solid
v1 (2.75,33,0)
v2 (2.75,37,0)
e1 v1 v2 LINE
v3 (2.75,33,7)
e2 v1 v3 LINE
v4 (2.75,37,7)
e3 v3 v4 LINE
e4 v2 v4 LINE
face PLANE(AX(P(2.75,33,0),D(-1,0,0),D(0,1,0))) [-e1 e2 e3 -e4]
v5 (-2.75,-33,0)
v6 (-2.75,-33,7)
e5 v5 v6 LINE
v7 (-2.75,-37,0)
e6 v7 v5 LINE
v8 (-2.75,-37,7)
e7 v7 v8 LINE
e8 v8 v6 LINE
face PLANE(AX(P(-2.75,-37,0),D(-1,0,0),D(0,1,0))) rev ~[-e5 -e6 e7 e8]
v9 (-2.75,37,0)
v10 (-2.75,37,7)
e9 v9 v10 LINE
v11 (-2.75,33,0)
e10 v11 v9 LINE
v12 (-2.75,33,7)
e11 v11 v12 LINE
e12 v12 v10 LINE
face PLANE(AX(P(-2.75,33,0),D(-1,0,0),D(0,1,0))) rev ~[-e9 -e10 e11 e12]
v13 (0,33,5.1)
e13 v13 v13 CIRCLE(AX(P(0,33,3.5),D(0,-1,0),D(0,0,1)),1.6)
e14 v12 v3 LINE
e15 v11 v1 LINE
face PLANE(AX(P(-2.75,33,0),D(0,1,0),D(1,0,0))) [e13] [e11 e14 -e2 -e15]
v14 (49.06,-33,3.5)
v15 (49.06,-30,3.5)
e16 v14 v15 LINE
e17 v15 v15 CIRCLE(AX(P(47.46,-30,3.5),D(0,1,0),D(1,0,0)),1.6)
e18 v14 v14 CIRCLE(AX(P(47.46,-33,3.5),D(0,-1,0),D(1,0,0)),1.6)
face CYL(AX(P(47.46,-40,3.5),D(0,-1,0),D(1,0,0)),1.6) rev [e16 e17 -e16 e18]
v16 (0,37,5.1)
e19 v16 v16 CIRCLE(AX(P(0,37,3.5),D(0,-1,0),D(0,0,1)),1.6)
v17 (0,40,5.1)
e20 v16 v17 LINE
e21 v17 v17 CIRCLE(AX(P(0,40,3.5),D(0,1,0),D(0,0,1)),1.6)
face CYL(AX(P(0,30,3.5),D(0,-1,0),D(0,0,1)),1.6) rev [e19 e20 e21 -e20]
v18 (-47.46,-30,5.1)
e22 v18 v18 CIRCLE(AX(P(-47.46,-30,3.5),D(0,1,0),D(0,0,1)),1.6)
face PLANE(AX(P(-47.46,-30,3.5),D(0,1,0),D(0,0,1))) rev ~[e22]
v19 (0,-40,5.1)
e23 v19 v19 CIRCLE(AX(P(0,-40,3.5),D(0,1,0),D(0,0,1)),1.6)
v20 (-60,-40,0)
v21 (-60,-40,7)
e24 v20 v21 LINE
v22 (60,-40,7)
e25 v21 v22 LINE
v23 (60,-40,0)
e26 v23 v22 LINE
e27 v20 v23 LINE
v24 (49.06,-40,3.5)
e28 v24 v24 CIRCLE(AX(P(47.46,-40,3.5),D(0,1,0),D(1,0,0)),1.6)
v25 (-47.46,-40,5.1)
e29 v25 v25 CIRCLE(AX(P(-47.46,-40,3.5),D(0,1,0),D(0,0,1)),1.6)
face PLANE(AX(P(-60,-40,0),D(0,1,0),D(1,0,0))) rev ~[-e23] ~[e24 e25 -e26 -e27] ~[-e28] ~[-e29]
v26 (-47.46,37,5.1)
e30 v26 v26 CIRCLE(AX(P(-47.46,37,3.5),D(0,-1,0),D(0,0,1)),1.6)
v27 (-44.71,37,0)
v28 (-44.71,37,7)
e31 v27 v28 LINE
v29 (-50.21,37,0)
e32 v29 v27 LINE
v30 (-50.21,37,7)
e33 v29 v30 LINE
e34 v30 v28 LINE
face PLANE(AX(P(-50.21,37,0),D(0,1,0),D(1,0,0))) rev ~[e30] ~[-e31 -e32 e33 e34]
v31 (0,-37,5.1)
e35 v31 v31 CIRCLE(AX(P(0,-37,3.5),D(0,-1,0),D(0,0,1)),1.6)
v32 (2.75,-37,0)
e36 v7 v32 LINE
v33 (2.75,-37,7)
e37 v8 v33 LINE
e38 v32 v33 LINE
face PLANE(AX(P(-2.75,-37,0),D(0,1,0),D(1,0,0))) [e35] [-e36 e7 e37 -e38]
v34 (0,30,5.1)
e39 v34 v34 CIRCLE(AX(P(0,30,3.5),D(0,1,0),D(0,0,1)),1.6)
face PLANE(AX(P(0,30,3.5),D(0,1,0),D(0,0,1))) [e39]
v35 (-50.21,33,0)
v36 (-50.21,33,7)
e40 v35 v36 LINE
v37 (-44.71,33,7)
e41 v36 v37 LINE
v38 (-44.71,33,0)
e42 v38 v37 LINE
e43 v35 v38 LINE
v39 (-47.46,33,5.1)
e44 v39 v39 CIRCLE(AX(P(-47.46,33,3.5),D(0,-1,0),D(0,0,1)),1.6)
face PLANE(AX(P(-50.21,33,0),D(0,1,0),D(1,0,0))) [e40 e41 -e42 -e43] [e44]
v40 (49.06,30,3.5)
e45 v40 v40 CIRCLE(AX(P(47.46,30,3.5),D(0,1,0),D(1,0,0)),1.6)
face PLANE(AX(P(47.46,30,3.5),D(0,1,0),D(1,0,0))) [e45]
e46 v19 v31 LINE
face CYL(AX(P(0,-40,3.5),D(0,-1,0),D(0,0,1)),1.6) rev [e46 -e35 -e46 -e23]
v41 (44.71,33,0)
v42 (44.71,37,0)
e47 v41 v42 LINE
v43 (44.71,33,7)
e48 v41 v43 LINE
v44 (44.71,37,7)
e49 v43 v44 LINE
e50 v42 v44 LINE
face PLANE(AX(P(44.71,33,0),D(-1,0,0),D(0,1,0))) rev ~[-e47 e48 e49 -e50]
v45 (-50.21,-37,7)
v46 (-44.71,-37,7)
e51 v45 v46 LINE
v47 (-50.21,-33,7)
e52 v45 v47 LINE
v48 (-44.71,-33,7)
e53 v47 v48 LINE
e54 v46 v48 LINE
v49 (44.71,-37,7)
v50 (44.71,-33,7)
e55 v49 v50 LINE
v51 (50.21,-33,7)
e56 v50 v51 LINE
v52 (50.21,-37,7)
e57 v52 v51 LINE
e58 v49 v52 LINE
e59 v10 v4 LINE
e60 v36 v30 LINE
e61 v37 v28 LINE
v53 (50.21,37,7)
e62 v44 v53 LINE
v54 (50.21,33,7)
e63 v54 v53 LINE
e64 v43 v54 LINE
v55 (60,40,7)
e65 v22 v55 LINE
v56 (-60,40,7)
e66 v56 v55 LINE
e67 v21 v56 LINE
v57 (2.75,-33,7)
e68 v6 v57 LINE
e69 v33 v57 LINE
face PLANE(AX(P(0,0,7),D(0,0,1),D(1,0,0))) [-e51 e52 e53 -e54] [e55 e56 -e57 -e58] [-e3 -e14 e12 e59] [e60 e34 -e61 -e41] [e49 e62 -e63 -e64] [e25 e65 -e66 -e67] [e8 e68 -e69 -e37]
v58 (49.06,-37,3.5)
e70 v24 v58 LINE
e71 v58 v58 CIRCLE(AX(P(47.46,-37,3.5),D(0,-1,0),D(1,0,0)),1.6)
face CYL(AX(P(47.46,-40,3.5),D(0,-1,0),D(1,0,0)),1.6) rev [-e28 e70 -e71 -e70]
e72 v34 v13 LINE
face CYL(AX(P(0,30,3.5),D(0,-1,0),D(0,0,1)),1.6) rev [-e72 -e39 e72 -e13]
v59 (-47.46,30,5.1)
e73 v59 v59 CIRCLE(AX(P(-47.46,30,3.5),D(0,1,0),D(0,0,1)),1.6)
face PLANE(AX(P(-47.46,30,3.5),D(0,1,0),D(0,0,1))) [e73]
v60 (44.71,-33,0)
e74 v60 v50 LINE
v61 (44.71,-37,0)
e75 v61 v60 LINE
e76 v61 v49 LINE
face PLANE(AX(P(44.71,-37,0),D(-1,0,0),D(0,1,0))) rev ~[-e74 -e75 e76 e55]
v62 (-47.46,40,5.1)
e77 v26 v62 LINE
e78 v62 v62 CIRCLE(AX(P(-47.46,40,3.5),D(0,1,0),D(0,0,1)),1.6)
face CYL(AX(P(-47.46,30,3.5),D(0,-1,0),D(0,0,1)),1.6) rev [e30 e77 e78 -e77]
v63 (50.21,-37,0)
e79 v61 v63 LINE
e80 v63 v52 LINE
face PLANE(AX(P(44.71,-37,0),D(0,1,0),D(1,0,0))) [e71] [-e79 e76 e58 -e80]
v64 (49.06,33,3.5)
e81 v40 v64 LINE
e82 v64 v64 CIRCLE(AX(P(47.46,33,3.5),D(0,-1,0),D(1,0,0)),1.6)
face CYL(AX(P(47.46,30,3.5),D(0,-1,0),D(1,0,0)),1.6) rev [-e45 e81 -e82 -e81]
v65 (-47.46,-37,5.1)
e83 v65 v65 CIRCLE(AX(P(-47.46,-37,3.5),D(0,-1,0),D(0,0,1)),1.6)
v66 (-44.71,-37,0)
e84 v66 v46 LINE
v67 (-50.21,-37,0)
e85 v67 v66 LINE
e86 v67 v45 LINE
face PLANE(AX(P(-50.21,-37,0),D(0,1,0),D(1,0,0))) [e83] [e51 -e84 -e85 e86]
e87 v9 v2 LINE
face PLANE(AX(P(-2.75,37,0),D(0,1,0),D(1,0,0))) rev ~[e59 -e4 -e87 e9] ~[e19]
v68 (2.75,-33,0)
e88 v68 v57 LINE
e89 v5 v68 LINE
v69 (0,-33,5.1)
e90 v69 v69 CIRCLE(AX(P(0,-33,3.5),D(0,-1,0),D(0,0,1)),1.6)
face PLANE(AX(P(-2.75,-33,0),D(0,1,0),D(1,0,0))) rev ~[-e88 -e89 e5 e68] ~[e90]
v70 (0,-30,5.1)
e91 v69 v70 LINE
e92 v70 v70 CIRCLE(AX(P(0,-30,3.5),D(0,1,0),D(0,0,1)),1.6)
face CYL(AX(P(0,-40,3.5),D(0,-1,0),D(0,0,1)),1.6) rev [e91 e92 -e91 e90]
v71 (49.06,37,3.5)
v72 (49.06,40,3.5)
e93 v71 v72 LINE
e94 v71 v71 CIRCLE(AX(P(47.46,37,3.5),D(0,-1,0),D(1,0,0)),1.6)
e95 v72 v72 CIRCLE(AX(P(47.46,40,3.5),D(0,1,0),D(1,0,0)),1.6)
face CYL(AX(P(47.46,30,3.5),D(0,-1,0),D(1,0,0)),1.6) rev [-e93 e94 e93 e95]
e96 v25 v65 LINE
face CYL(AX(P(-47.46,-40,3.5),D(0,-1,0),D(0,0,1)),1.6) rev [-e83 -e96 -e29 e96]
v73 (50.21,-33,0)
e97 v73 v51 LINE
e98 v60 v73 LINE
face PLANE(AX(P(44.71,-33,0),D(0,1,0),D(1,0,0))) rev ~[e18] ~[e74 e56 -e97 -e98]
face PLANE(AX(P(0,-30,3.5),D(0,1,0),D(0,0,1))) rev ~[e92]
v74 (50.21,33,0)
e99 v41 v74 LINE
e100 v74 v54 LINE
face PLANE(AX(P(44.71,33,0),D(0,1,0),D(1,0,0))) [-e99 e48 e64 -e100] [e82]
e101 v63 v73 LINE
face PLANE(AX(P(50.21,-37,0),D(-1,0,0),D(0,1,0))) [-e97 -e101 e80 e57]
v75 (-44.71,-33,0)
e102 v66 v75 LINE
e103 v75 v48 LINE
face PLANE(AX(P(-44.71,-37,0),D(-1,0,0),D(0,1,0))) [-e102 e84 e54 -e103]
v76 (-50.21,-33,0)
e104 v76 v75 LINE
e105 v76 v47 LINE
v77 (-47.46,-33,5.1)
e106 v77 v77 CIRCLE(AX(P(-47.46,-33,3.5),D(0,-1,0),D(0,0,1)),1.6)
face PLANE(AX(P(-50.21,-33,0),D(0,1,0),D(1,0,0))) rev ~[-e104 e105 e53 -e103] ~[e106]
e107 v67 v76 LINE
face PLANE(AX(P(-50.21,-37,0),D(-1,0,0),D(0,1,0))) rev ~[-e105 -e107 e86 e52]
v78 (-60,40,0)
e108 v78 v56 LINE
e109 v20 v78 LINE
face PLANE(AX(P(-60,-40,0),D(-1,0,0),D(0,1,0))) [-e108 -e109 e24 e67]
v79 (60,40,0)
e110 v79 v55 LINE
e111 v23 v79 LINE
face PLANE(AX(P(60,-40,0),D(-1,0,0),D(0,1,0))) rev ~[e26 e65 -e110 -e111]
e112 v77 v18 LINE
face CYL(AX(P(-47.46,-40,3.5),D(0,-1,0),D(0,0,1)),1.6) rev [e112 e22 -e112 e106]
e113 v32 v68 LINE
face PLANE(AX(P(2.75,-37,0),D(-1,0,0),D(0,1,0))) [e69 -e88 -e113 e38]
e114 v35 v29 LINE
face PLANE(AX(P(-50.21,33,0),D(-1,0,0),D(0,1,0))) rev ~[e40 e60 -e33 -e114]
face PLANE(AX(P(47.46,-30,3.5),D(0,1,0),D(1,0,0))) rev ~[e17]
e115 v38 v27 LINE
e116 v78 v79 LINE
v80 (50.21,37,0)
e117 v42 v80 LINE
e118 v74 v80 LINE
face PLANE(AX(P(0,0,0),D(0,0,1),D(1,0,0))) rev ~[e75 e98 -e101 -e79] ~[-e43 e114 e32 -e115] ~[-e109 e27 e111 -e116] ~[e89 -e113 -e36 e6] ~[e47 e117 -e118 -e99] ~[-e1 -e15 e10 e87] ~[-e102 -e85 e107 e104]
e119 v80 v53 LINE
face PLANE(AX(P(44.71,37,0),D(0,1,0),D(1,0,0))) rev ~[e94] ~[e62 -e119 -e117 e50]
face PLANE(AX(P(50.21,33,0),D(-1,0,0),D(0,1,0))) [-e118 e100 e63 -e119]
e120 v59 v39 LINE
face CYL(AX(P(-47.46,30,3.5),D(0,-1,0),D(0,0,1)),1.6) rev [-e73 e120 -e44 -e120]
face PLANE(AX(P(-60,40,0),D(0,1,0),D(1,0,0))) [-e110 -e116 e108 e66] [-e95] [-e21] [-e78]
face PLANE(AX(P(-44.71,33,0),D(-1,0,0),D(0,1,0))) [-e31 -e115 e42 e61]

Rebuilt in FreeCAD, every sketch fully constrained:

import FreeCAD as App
import Part
import Sketcher
from FreeCAD import Vector

doc = App.newDocument("Part")
body = doc.addObject("PartDesign::Body", "Body")

sketch1 = body.newObject("Sketcher::SketchObject", "Sketch")
sketch1.AttachmentSupport = (doc.getObject("XY_Plane"), [""])
sketch1.MapMode = "FlatFace"
sketch1.addGeometry([
    Part.LineSegment(Vector(-60, 40, 0), Vector(-60, -40, 0)),
    Part.LineSegment(Vector(-60, -40, 0), Vector(60, -40, 0)),
    Part.LineSegment(Vector(60, -40, 0), Vector(60, 40, 0)),
    Part.LineSegment(Vector(60, 40, 0), Vector(-60, 40, 0)),
    Part.LineSegment(Vector(-44.7, -37, 0), Vector(-50.2, -37, 0)),
    Part.LineSegment(Vector(-50.2, -37, 0), Vector(-50.2, -33, 0)),
    Part.LineSegment(Vector(-50.2, -33, 0), Vector(-44.7, -33, 0)),
    Part.LineSegment(Vector(-44.7, -33, 0), Vector(-44.7, -37, 0)),
    Part.LineSegment(Vector(2.8, -37, 0), Vector(-2.8, -37, 0)),
    Part.LineSegment(Vector(-2.8, -37, 0), Vector(-2.8, -33, 0)),
    Part.LineSegment(Vector(-2.8, -33, 0), Vector(2.8, -33, 0)),
    Part.LineSegment(Vector(2.8, -33, 0), Vector(2.8, -37, 0)),
    Part.LineSegment(Vector(50.2, -37, 0), Vector(44.7, -37, 0)),
    Part.LineSegment(Vector(44.7, -37, 0), Vector(44.7, -33, 0)),
    Part.LineSegment(Vector(44.7, -33, 0), Vector(50.2, -33, 0)),
    Part.LineSegment(Vector(50.2, -33, 0), Vector(50.2, -37, 0)),
    Part.LineSegment(Vector(-44.7, 33, 0), Vector(-50.2, 33, 0)),
    Part.LineSegment(Vector(-50.2, 33, 0), Vector(-50.2, 37, 0)),
    Part.LineSegment(Vector(-50.2, 37, 0), Vector(-44.7, 37, 0)),
    Part.LineSegment(Vector(-44.7, 37, 0), Vector(-44.7, 33, 0)),
    Part.LineSegment(Vector(2.8, 33, 0), Vector(-2.8, 33, 0)),
    Part.LineSegment(Vector(-2.8, 33, 0), Vector(-2.8, 37, 0)),
    Part.LineSegment(Vector(-2.8, 37, 0), Vector(2.8, 37, 0)),
    Part.LineSegment(Vector(2.8, 37, 0), Vector(2.8, 33, 0)),
    Part.LineSegment(Vector(50.2, 33, 0), Vector(44.7, 33, 0)),
    Part.LineSegment(Vector(44.7, 33, 0), Vector(44.7, 37, 0)),
    Part.LineSegment(Vector(44.7, 37, 0), Vector(50.2, 37, 0)),
    Part.LineSegment(Vector(50.2, 37, 0), Vector(50.2, 33, 0)),
], False)
sketch1.addConstraint([
    Sketcher.Constraint("Coincident", 0, 2, 1, 1),
    Sketcher.Constraint("Coincident", 1, 2, 2, 1),
    Sketcher.Constraint("Coincident", 2, 2, 3, 1),
    Sketcher.Constraint("Coincident", 3, 2, 0, 1),
    Sketcher.Constraint("Coincident", 4, 2, 5, 1),
    Sketcher.Constraint("Coincident", 5, 2, 6, 1),
    Sketcher.Constraint("Coincident", 6, 2, 7, 1),
    Sketcher.Constraint("Coincident", 7, 2, 4, 1),
    Sketcher.Constraint("Coincident", 8, 2, 9, 1),
    Sketcher.Constraint("Coincident", 9, 2, 10, 1),
    Sketcher.Constraint("Coincident", 10, 2, 11, 1),
    Sketcher.Constraint("Coincident", 11, 2, 8, 1),
    Sketcher.Constraint("Coincident", 12, 2, 13, 1),
    Sketcher.Constraint("Coincident", 13, 2, 14, 1),
    Sketcher.Constraint("Coincident", 14, 2, 15, 1),
    Sketcher.Constraint("Coincident", 15, 2, 12, 1),
    Sketcher.Constraint("Coincident", 16, 2, 17, 1),
    Sketcher.Constraint("Coincident", 17, 2, 18, 1),
    Sketcher.Constraint("Coincident", 18, 2, 19, 1),
    Sketcher.Constraint("Coincident", 19, 2, 16, 1),
    Sketcher.Constraint("Coincident", 20, 2, 21, 1),
    Sketcher.Constraint("Coincident", 21, 2, 22, 1),
    Sketcher.Constraint("Coincident", 22, 2, 23, 1),
    Sketcher.Constraint("Coincident", 23, 2, 20, 1),
    Sketcher.Constraint("Coincident", 24, 2, 25, 1),
    Sketcher.Constraint("Coincident", 25, 2, 26, 1),
    Sketcher.Constraint("Coincident", 26, 2, 27, 1),
    Sketcher.Constraint("Coincident", 27, 2, 24, 1),
    Sketcher.Constraint("Vertical", 0),
    Sketcher.Constraint("Horizontal", 1),
    Sketcher.Constraint("Vertical", 2),
    Sketcher.Constraint("Horizontal", 3),
    Sketcher.Constraint("Horizontal", 4),
    Sketcher.Constraint("Vertical", 5),
    Sketcher.Constraint("Horizontal", 6),
    Sketcher.Constraint("Vertical", 7),
    Sketcher.Constraint("Horizontal", 8),
    Sketcher.Constraint("Vertical", 9),
    Sketcher.Constraint("Horizontal", 10),
    Sketcher.Constraint("Vertical", 11),
    Sketcher.Constraint("Horizontal", 12),
    Sketcher.Constraint("Vertical", 13),
    Sketcher.Constraint("Horizontal", 14),
    Sketcher.Constraint("Vertical", 15),
    Sketcher.Constraint("Horizontal", 16),
    Sketcher.Constraint("Vertical", 17),
    Sketcher.Constraint("Horizontal", 18),
    Sketcher.Constraint("Vertical", 19),
    Sketcher.Constraint("Horizontal", 20),
    Sketcher.Constraint("Vertical", 21),
    Sketcher.Constraint("Horizontal", 22),
    Sketcher.Constraint("Vertical", 23),
    Sketcher.Constraint("Horizontal", 24),
    Sketcher.Constraint("Vertical", 25),
    Sketcher.Constraint("Horizontal", 26),
    Sketcher.Constraint("Vertical", 27),
    Sketcher.Constraint("Symmetric", 0, 2, 2, 2, -1, 1),
    Sketcher.Constraint("Symmetric", 14, 2, 16, 2, -1, 1),
    Sketcher.Constraint("Symmetric", 12, 2, 18, 2, -1, 1),
    Sketcher.Constraint("Symmetric", 10, 2, 20, 2, -1, 1),
    Sketcher.Constraint("Symmetric", 8, 2, 22, 2, -1, 1),
    Sketcher.Constraint("Symmetric", 6, 2, 24, 2, -1, 1),
    Sketcher.Constraint("Symmetric", 4, 2, 26, 2, -1, 1),
    Sketcher.Constraint("Symmetric", 7, 2, 12, 2, -2),
    Sketcher.Constraint("Symmetric", 5, 2, 14, 2, -2),
    Sketcher.Constraint("Horizontal", 7, 2, 8, 2),
    Sketcher.Constraint("Horizontal", 6, 2, 9, 2),
    Sketcher.Constraint("Vertical", 9, 2, 20, 2),
    Sketcher.Constraint("Equal", 6, 8),
    Sketcher.Constraint("DistanceX", 1, 1, 1, 2, 120.0),
    Sketcher.Constraint("DistanceY", 0, 2, 0, 1, 80.0),
    Sketcher.Constraint("DistanceY", 5, 1, 5, 2, 4.0),
    Sketcher.Constraint("DistanceX", 4, 2, 4, 1, 5.5),
    Sketcher.Constraint("DistanceY", 4, 2, -1, 1, 37.0),
    Sketcher.Constraint("DistanceX", 4, 2, -1, 1, 50.21),
])
pad1 = body.newObject("PartDesign::Pad", "Pad")
pad1.Profile = sketch1
pad1.Length = 7

sketch2 = body.newObject("Sketcher::SketchObject", "Sketch001")
sketch2.AttachmentSupport = (doc.getObject("XZ_Plane"), [""])
sketch2.MapMode = "FlatFace"
sketch2.AttachmentOffset = App.Placement(Vector(0, 0, 40), App.Rotation())
sketch2.addGeometry([
    Part.Circle(Vector(-47.5, 3.5, 0), Vector(0, 0, 1), 1.6),
    Part.Circle(Vector(0, 3.5, 0), Vector(0, 0, 1), 1.6),
    Part.Circle(Vector(47.5, 3.5, 0), Vector(0, 0, 1), 1.6),
], False)
sketch2.addConstraint([
    Sketcher.Constraint("Equal", 0, 1),
    Sketcher.Constraint("Equal", 1, 2),
    Sketcher.Constraint("Symmetric", 0, 3, 2, 3, -2),
    Sketcher.Constraint("PointOnObject", 1, 3, -2),
    Sketcher.Constraint("Horizontal", 0, 3, 1, 3),
    Sketcher.Constraint("Diameter", 0, 3.2),
    Sketcher.Constraint("DistanceY", -1, 1, 0, 3, 3.5),
    Sketcher.Constraint("DistanceX", 0, 3, -1, 1, 47.46),
])
pocket1 = body.newObject("PartDesign::Pocket", "Pocket")
pocket1.Profile = sketch2
pocket1.Length = 10

sketch3 = body.newObject("Sketcher::SketchObject", "Sketch002")
sketch3.AttachmentSupport = (doc.getObject("XZ_Plane"), [""])
sketch3.MapMode = "FlatFace"
sketch3.AttachmentOffset = App.Placement(Vector(0, 0, -30), App.Rotation())
sketch3.addGeometry([
    Part.Circle(Vector(-47.5, 3.5, 0), Vector(0, 0, 1), 1.6),
    Part.Circle(Vector(0, 3.5, 0), Vector(0, 0, 1), 1.6),
    Part.Circle(Vector(47.5, 3.5, 0), Vector(0, 0, 1), 1.6),
], False)
sketch3.addConstraint([
    Sketcher.Constraint("Equal", 0, 1),
    Sketcher.Constraint("Equal", 1, 2),
    Sketcher.Constraint("Symmetric", 0, 3, 2, 3, -2),
    Sketcher.Constraint("PointOnObject", 1, 3, -2),
    Sketcher.Constraint("Horizontal", 0, 3, 1, 3),
    Sketcher.Constraint("Diameter", 0, 3.2),
    Sketcher.Constraint("DistanceY", -1, 1, 0, 3, 3.5),
    Sketcher.Constraint("DistanceX", 0, 3, -1, 1, 47.46),
])
pocket2 = body.newObject("PartDesign::Pocket", "Pocket001")
pocket2.Profile = sketch3
pocket2.Length = 10

doc.recompute()
